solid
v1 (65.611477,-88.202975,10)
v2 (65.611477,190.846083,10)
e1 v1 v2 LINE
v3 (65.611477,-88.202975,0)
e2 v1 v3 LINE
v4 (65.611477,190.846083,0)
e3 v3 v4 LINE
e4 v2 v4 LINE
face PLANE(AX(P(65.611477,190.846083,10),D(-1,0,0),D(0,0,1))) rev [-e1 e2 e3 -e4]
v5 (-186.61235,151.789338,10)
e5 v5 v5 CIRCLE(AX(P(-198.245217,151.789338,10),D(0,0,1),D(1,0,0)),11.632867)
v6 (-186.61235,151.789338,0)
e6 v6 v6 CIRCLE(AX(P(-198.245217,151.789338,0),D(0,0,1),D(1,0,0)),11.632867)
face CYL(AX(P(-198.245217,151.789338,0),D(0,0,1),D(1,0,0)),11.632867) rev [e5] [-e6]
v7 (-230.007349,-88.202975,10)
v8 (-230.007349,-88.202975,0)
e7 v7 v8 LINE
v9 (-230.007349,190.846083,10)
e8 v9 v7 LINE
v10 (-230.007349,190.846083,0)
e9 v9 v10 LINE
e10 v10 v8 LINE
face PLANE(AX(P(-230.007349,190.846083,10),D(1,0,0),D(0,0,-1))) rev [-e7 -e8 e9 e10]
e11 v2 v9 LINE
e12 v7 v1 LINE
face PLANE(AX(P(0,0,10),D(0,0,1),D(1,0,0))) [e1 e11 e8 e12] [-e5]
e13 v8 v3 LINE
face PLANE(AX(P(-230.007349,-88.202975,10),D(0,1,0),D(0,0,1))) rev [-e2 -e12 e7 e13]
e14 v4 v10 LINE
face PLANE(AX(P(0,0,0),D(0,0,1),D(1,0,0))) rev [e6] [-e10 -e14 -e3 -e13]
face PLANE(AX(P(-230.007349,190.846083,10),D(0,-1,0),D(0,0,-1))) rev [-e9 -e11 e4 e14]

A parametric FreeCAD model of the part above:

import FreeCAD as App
import Part
import Sketcher
from FreeCAD import Vector
Q = App.Units.Quantity


def add_polygon(sketch, points):
    """Adds a closed chain of lines whose ends are joined by coincident constraints."""
    first, n = sketch.GeometryCount, len(points)
    for a, b in zip(points, points[1:] + points[:1]):
        sketch.addGeometry(Part.LineSegment(App.Vector(*a, 0), App.Vector(*b, 0)), False)
    for i in range(n):
        sketch.addConstraint(Sketcher.Constraint("Coincident", first + i, 2, first + (i + 1) % n, 1))

doc = App.newDocument("Part")
params = doc.addObject("Spreadsheet::Sheet", "Params")
for row, (alias, value) in enumerate([
    ("pad1_length", "10 mm"),
    ("pocket1_length", "10 mm"),
], start=1):
    params.set(f"A{row}", alias)
    params.set(f"B{row}", "=" + value)
    params.setAlias(f"B{row}", alias)

body = doc.addObject("PartDesign::Body", "Body")

sketch1 = body.newObject("Sketcher::SketchObject", "Sketch")
sketch1.AttachmentSupport = (doc.getObject("XY_Plane"), [""])
sketch1.MapMode = "FlatFace"
add_polygon(sketch1, [(-230, 191), (-230, -88), (66, -88), (66, 191)])
sketch1.addConstraint(Sketcher.Constraint("Vertical", 0))
sketch1.addConstraint(Sketcher.Constraint("Horizontal", 1))
sketch1.addConstraint(Sketcher.Constraint("Vertical", 2))
sketch1.addConstraint(Sketcher.Constraint("Horizontal", 3))
sketch1.addConstraint(Sketcher.Constraint("DistanceX", 1, 1, 1, 2, Q("295.618826 mm")))
sketch1.addConstraint(Sketcher.Constraint("DistanceY", 0, 2, 0, 1, Q("279.049057 mm")))
sketch1.addConstraint(Sketcher.Constraint("DistanceX", 0, 2, -1, 1, Q("230.007349 mm")))
sketch1.addConstraint(Sketcher.Constraint("DistanceY", 0, 2, -1, 1, Q("88.202975 mm")))
pad1 = body.newObject("PartDesign::Pad", "Pad")
pad1.Profile = sketch1
pad1.setExpression("Length", "Params.pad1_length")

sketch2 = body.newObject("Sketcher::SketchObject", "Sketch001")
sketch2.AttachmentSupport = (doc.getObject("XY_Plane"), [""])
sketch2.MapMode = "FlatFace"
sketch2.AttachmentOffset = App.Placement(Vector(0, 0, 10), App.Rotation())
sketch2.addGeometry(Part.Circle(Vector(-198, 152, 0), Vector(0, 0, 1), 12), False)
sketch2.addConstraint(Sketcher.Constraint("Diameter", 0, Q("23.265734 mm")))
sketch2.addConstraint(Sketcher.Constraint("DistanceY", -1, 1, 0, 3, Q("151.789338 mm")))
sketch2.addConstraint(Sketcher.Constraint("DistanceX", 0, 3, -1, 1, Q("198.245217 mm")))
pocket1 = body.newObject("PartDesign::Pocket", "Pocket")
pocket1.Profile = sketch2
pocket1.setExpression("Length", "Params.pocket1_length")

doc.recompute()
